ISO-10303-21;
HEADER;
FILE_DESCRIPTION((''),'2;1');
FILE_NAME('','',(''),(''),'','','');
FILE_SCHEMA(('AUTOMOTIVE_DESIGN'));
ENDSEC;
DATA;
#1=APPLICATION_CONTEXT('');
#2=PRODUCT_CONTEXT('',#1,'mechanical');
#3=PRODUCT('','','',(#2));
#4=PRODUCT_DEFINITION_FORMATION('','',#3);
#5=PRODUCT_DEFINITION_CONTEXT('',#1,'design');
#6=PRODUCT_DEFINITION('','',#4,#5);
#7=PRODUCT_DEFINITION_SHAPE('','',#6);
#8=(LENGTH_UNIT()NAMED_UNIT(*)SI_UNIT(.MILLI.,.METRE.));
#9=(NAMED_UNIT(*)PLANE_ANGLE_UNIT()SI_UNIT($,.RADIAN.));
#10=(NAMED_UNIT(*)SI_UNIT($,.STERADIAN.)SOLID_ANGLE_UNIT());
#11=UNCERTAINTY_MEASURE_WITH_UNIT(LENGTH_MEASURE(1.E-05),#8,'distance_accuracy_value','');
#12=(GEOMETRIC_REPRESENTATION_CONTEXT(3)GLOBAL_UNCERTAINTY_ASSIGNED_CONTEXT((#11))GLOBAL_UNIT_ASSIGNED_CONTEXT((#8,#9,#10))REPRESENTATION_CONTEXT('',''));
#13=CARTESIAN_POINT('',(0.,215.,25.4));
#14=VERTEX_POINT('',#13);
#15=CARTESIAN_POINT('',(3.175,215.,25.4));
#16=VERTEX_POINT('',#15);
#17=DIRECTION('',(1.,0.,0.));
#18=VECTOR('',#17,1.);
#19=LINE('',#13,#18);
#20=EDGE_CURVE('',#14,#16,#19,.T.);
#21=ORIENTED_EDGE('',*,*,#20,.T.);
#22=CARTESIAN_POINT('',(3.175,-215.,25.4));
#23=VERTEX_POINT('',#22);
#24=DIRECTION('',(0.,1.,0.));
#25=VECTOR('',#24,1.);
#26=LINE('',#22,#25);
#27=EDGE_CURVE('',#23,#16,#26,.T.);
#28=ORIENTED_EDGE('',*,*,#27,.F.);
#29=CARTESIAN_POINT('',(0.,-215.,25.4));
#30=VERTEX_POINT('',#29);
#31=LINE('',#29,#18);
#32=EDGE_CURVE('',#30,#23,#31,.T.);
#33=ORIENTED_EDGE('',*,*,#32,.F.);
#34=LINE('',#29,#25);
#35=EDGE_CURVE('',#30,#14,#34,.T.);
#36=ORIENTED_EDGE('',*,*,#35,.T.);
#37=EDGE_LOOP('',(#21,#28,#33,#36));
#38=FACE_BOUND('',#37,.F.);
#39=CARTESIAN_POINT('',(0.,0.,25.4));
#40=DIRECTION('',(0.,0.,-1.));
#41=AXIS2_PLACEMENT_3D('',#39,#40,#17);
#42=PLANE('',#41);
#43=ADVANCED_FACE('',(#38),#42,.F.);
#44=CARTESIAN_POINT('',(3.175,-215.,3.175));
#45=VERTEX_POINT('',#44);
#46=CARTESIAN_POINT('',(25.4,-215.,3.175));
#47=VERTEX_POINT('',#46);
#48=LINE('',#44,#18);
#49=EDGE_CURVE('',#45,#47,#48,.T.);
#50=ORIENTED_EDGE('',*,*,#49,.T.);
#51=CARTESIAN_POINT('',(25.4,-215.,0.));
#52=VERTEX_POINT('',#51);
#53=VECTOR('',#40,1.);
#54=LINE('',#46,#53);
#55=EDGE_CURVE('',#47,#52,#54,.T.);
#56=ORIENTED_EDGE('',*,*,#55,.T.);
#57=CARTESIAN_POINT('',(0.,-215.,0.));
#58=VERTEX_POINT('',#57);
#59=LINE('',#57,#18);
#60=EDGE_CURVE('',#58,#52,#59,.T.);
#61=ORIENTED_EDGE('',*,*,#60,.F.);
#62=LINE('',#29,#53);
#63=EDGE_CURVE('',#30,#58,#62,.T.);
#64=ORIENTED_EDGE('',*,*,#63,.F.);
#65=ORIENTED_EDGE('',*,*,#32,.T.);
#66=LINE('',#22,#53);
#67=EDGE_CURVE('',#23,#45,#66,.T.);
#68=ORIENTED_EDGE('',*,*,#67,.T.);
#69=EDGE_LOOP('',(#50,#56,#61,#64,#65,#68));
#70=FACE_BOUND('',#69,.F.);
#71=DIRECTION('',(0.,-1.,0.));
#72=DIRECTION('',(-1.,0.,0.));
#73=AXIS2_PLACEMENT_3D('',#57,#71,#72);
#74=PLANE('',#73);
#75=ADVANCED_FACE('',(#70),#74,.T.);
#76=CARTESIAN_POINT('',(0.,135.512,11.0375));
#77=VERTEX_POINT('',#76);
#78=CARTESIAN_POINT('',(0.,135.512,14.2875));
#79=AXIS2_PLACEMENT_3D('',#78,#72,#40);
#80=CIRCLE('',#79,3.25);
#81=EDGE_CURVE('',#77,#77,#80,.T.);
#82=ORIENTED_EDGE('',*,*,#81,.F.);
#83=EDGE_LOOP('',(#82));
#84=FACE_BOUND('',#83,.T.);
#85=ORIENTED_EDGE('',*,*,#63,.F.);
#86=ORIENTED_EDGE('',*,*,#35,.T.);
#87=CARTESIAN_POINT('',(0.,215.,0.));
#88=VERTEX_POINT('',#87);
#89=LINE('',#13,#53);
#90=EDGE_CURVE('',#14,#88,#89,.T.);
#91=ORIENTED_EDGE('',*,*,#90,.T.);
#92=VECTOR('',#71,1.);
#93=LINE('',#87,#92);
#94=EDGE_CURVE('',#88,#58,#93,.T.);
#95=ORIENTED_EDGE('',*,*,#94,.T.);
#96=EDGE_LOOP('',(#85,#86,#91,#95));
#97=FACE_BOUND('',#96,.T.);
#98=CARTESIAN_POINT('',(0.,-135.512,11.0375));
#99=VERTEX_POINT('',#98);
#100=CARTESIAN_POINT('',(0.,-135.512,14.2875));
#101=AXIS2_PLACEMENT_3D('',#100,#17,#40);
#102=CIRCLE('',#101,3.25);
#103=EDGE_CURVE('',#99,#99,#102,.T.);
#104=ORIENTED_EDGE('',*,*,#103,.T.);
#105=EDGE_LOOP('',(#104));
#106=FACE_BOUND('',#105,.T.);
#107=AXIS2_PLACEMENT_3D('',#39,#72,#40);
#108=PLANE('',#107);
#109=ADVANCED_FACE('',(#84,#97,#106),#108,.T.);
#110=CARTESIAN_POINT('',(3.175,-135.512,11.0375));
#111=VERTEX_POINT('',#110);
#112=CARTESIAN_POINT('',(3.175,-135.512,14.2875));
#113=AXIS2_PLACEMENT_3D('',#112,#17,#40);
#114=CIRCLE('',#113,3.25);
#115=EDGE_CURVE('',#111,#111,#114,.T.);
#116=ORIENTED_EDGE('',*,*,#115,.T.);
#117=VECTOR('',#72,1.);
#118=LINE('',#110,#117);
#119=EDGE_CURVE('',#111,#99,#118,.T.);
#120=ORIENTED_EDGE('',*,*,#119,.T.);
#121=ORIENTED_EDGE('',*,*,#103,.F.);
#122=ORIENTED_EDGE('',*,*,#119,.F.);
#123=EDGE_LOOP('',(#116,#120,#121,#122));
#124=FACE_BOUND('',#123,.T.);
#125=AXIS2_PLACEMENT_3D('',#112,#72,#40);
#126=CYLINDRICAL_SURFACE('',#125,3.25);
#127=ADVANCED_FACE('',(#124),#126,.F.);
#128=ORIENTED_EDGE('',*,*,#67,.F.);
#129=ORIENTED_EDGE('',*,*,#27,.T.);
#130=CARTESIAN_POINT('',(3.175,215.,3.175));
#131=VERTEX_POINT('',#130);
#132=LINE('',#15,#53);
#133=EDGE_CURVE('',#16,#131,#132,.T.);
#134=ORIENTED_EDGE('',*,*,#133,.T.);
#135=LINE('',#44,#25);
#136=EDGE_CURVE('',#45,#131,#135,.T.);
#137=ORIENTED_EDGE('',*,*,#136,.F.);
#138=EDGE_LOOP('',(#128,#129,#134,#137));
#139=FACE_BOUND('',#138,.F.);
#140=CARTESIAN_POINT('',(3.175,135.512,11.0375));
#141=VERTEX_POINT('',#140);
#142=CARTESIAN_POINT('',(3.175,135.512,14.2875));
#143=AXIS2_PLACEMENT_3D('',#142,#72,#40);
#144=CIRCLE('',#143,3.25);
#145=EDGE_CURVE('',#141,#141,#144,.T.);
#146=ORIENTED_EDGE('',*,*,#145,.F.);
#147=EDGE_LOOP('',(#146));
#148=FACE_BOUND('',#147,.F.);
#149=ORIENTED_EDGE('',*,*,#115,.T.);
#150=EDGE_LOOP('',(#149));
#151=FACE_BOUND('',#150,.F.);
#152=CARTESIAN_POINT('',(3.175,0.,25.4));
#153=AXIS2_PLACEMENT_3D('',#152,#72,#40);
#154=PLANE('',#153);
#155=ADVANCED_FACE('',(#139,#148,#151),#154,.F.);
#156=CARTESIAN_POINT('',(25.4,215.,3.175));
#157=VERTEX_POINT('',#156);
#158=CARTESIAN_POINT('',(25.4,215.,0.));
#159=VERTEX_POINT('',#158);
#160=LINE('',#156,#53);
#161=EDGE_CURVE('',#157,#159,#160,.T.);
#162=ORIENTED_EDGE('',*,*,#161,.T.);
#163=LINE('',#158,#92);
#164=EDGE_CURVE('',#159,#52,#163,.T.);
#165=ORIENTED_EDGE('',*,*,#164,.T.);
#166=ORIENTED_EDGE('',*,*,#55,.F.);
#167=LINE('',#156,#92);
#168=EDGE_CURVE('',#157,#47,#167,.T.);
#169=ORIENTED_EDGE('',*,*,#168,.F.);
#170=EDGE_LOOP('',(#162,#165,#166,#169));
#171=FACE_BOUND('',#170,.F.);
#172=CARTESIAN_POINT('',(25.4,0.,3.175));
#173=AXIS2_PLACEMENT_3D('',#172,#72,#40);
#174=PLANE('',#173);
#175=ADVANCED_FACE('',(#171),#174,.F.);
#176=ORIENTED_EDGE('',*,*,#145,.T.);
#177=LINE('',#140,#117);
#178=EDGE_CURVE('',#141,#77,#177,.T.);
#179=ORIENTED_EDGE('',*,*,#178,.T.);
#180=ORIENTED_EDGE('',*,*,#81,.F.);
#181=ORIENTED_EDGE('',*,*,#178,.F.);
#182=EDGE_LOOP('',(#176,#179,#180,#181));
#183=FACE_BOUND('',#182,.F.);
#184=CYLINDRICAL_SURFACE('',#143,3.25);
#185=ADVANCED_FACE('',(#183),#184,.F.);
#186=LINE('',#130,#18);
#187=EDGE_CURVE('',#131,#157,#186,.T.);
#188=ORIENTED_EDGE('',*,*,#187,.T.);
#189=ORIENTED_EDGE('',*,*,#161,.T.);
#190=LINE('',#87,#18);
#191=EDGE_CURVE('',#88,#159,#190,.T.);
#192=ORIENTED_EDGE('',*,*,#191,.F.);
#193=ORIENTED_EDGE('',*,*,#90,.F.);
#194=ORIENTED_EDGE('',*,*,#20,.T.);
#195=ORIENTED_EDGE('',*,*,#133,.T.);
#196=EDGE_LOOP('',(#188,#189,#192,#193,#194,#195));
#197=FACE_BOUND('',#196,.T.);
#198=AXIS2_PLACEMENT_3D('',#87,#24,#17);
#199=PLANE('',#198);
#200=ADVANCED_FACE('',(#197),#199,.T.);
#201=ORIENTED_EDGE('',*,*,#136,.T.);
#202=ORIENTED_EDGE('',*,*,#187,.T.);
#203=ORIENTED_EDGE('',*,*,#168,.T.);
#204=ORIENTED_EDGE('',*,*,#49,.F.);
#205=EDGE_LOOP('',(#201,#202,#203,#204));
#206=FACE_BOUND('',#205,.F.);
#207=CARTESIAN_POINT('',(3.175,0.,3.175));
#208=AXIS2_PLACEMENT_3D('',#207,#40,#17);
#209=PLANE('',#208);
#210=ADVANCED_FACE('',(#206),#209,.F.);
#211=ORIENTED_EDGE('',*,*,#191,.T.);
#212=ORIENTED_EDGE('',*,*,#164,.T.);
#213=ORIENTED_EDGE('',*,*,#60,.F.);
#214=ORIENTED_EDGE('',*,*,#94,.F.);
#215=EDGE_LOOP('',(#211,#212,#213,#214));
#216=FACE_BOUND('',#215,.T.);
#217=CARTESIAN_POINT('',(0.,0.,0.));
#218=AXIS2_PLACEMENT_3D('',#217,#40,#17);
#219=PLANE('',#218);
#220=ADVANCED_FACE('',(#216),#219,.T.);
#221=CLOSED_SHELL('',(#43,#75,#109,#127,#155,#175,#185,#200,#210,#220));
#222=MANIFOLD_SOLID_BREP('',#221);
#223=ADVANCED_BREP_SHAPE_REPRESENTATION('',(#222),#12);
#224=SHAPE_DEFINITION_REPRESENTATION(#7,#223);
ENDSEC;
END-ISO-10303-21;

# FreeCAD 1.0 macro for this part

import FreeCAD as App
import Part
import Sketcher

V = App.Vector
Q = App.Units.Quantity

doc = App.newDocument("Part")
params = doc.addObject("Spreadsheet::Sheet", "Params")
for row, (alias, value) in enumerate([
    ("sketch1_width", "1 in"),
    ("sketch1_width2", "0.125 in"),
    ("pad1_length", "215 mm"),
    ("hole_diameter", "0.2559055 in"),
], start=1):
    params.set(f"A{row}", alias)
    params.set(f"B{row}", "=" + value)
    params.setAlias(f"B{row}", alias)

body = doc.addObject("PartDesign::Body", "Body")

# Sketch on XZ plane
sketch1 = body.newObject("Sketcher::SketchObject", "Sketch")
sketch1.AttachmentSupport = (doc.getObject("XZ_Plane"), [""])
sketch1.MapMode = "FlatFace"
sketch1.addGeometry(Part.LineSegment(V(0, 0, 0), V(0, 25.4, 0)), False)
sketch1.addGeometry(Part.LineSegment(V(0, 25.4, 0), V(3.175, 25.4, 0)), False)
sketch1.addGeometry(Part.LineSegment(V(3.175, 25.4, 0), V(3.175, 3.175, 0)), False)
sketch1.addGeometry(Part.LineSegment(V(3.175, 3.175, 0), V(25.4, 3.175, 0)), False)
sketch1.addGeometry(Part.LineSegment(V(25.4, 3.175, 0), V(25.4, 0, 0)), False)
sketch1.addGeometry(Part.LineSegment(V(25.4, 0, 0), V(0, 0, 0)), False)
sketch1.addConstraint(Sketcher.Constraint("Coincident", 0, 2, 1, 1))
sketch1.addConstraint(Sketcher.Constraint("Coincident", 1, 2, 2, 1))
sketch1.addConstraint(Sketcher.Constraint("Coincident", 2, 2, 3, 1))
sketch1.addConstraint(Sketcher.Constraint("Coincident", 3, 2, 4, 1))
sketch1.addConstraint(Sketcher.Constraint("Coincident", 4, 2, 5, 1))
sketch1.addConstraint(Sketcher.Constraint("Coincident", 5, 2, 0, 1))
sketch1.addConstraint(Sketcher.Constraint("Vertical", 0))
sketch1.addConstraint(Sketcher.Constraint("Horizontal", 1))
sketch1.addConstraint(Sketcher.Constraint("Vertical", 2))
sketch1.addConstraint(Sketcher.Constraint("Horizontal", 3))
sketch1.addConstraint(Sketcher.Constraint("Vertical", 4))
sketch1.addConstraint(Sketcher.Constraint("Horizontal", 5))
sketch1.addConstraint(Sketcher.Constraint("Coincident", 5, 2, -1, 1))
sketch1.addConstraint(Sketcher.Constraint("Equal", 5, 0))
sketch1.addConstraint(Sketcher.Constraint("Equal", 3, 2))
sketch1.addConstraint(Sketcher.Constraint("DistanceX", 5, 2, 5, 1, Q("1 in")))
sketch1.addConstraint(Sketcher.Constraint("DistanceX", 1, 1, 1, 2, Q("0.125 in")))
sketch1.setExpression("Constraints[15]", "Params.sketch1_width")
sketch1.setExpression("Constraints[16]", "Params.sketch1_width2")
pad1 = body.newObject("PartDesign::Pad", "Pad")
pad1.Profile = sketch1
pad1.setExpression("Length", "Params.pad1_length")
pad1.Reversed = True

# Sketch on YZ plane
sketch2 = body.newObject("Sketcher::SketchObject", "Sketch001")
sketch2.AttachmentSupport = (doc.getObject("YZ_Plane"), [""])
sketch2.MapMode = "FlatFace"
sketch2.AttachmentOffset = App.Placement(V(0, 0, 0.125 * 25.4), App.Rotation())
sketch2.addGeometry(Part.Circle(V(135.512, 14.2875, 0), V(0, 0, 1), 3.25), False)
sketch2.addConstraint(Sketcher.Constraint("Diameter", 0, Q("0.2559 in")))
sketch2.addConstraint(Sketcher.Constraint("DistanceY", -1, 1, 0, 3, Q("0.5625 in")))
sketch2.addConstraint(Sketcher.Constraint("DistanceX", -1, 1, 0, 3, Q("135.512 mm")))
doc.recompute()
hole = body.newObject("PartDesign::Hole", "Hole")
hole.Profile = sketch2
hole.ThreadType = "None"
hole.setExpression("Diameter", "Params.hole_diameter")
hole.DepthType = "ThroughAll"
doc.recompute()

mirrored = body.newObject("PartDesign::Mirrored", "Mirrored")
mirrored.TransformMode = "Transform body"
mirrored.MirrorPlane = (doc.getObject("XZ_Plane"), [""])
body.Tip = mirrored

doc.recompute()
